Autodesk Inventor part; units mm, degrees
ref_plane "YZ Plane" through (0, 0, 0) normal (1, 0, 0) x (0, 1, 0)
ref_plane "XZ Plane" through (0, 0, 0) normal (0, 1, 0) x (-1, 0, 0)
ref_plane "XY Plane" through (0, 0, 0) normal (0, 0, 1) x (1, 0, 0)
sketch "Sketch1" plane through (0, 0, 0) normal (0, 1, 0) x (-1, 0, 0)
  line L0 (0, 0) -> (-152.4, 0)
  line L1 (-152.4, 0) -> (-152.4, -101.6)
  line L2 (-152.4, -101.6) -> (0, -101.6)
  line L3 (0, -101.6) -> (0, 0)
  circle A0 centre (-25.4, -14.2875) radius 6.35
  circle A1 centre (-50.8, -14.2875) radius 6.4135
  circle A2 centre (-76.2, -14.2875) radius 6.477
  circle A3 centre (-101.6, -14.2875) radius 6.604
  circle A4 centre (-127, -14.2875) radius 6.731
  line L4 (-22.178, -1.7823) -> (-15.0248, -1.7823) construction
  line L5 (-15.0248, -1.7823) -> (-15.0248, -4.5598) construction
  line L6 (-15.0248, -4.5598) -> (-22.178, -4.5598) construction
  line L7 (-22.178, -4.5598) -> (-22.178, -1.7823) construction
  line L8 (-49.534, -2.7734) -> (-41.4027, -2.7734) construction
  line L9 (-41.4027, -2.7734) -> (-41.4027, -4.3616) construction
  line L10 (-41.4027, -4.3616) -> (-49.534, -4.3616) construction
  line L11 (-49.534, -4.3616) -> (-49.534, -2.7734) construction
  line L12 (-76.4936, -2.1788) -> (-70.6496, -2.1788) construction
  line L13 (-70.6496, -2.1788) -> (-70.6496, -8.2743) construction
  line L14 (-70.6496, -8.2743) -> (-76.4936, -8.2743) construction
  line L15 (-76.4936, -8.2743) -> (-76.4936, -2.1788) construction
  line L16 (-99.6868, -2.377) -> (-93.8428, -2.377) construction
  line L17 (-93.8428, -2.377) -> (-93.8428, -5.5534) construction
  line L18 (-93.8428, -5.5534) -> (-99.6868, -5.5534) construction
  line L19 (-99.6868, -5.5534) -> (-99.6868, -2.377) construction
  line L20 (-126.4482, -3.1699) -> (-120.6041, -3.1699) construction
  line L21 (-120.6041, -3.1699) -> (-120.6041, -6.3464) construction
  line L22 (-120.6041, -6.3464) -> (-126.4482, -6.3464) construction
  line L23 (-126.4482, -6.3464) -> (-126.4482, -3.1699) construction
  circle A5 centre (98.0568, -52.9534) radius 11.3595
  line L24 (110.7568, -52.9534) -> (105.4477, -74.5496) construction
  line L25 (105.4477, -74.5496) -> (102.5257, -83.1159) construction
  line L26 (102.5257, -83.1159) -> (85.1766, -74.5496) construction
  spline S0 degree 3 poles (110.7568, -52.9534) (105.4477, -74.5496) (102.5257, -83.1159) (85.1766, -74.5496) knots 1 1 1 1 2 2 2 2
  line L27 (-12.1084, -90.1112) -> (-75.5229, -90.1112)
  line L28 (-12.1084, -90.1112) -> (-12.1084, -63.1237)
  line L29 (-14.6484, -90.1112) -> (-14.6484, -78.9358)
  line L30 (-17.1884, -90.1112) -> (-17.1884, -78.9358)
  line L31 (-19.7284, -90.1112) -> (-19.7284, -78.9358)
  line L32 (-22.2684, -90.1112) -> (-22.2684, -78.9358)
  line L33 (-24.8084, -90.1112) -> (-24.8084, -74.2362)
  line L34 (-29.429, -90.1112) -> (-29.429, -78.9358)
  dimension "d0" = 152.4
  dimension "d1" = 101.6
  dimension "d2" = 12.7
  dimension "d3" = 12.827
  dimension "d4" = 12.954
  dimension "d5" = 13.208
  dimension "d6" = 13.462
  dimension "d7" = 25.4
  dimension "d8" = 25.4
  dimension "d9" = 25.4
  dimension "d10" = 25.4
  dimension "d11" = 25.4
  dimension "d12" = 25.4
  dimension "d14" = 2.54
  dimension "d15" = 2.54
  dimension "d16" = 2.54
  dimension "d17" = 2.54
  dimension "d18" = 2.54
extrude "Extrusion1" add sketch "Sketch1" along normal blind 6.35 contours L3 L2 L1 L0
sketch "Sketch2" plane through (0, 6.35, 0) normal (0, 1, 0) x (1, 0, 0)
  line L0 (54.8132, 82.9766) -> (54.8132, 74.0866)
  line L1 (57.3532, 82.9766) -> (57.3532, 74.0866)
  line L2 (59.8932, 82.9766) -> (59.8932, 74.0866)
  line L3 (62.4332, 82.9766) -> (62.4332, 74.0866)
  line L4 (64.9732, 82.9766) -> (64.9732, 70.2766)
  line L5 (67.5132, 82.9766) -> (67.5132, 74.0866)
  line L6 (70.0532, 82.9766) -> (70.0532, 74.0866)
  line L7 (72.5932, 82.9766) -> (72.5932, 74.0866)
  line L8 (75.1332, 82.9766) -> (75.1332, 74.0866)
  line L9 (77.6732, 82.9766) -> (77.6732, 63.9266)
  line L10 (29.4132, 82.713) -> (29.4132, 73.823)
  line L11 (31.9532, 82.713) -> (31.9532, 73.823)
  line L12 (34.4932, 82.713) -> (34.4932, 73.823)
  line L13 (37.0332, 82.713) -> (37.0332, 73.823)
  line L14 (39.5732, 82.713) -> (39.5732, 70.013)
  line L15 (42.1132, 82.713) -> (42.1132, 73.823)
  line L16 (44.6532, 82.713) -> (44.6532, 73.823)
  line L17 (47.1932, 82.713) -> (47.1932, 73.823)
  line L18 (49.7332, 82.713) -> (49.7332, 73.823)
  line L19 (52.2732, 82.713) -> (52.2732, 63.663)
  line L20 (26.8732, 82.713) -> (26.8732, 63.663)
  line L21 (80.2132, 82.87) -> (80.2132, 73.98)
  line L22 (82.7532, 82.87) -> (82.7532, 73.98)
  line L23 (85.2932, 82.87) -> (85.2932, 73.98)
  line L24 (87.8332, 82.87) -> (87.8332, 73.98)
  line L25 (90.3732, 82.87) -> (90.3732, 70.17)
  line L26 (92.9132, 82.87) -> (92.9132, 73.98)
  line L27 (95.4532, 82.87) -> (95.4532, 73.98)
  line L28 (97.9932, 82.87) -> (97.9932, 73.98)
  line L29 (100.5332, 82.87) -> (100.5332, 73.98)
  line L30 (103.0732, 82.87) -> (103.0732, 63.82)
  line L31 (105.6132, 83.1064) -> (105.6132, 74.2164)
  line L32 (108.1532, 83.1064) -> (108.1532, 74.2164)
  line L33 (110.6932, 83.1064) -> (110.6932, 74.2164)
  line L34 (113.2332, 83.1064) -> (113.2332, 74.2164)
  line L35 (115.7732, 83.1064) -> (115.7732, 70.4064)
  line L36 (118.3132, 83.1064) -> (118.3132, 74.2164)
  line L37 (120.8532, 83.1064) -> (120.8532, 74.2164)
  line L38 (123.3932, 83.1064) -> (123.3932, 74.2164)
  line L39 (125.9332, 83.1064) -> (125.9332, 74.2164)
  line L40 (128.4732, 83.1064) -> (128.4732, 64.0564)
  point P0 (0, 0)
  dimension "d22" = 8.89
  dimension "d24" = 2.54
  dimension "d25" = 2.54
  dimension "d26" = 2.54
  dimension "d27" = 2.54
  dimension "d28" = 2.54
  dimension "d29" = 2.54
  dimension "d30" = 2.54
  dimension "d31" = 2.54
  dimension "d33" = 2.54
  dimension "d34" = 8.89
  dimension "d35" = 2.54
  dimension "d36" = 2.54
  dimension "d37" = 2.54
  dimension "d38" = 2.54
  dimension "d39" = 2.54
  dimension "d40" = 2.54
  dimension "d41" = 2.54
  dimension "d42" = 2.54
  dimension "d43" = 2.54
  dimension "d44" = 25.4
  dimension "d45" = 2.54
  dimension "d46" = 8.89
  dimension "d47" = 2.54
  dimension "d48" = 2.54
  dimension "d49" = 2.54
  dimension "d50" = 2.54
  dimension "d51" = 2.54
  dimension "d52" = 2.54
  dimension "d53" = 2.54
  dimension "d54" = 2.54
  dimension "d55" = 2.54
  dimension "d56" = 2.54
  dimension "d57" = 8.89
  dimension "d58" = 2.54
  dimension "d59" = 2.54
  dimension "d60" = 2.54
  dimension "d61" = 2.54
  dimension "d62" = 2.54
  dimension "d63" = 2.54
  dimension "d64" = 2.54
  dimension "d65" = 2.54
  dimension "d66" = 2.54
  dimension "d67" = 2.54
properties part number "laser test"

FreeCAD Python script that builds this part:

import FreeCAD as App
import Part
import Sketcher
from FreeCAD import Vector
Q = App.Units.Quantity


def add_polygon(sketch, points):
    """Adds a closed chain of lines whose ends are joined by coincident constraints."""
    first, n = sketch.GeometryCount, len(points)
    for a, b in zip(points, points[1:] + points[:1]):
        sketch.addGeometry(Part.LineSegment(App.Vector(*a, 0), App.Vector(*b, 0)), False)
    for i in range(n):
        sketch.addConstraint(Sketcher.Constraint("Coincident", first + i, 2, first + (i + 1) % n, 1))

doc = App.newDocument("Part")
body = doc.addObject("PartDesign::Body", "Body")

# Sketch on XZ plane
sketch1 = body.newObject("Sketcher::SketchObject", "Sketch")
sketch1.AttachmentSupport = (doc.getObject("XZ_Plane"), [""])
sketch1.MapMode = "FlatFace"
add_polygon(sketch1, [(0, -101.6), (0, 0), (152.4, 0), (152.4, -101.6)])  # lines 0-3
sketch1.addGeometry(Part.Circle(Vector(127, -14.2875, 0), Vector(0, 0, 1), 6.731), False)  # 4
sketch1.addGeometry(Part.Circle(Vector(101.6, -14.2875, 0), Vector(0, 0, 1), 6.604), False)  # 5
sketch1.addGeometry(Part.Circle(Vector(76.2, -14.2875, 0), Vector(0, 0, 1), 6.477), False)  # 6
sketch1.addGeometry(Part.Circle(Vector(50.8, -14.2875, 0), Vector(0, 0, 1), 6.4135), False)  # 7
sketch1.addGeometry(Part.Circle(Vector(25.4, -14.2875, 0), Vector(0, 0, 1), 6.35), False)  # 8
sketch1.addConstraint(Sketcher.Constraint("Vertical", 0))
sketch1.addConstraint(Sketcher.Constraint("Horizontal", 1))
sketch1.addConstraint(Sketcher.Constraint("Vertical", 2))
sketch1.addConstraint(Sketcher.Constraint("Horizontal", 3))
sketch1.addConstraint(Sketcher.Constraint("Coincident", 0, 2, -1, 1))
sketch1.addConstraint(Sketcher.Constraint("Horizontal", 4, 3, 5, 3))
sketch1.addConstraint(Sketcher.Constraint("Horizontal", 5, 3, 6, 3))
sketch1.addConstraint(Sketcher.Constraint("Horizontal", 6, 3, 7, 3))
sketch1.addConstraint(Sketcher.Constraint("Horizontal", 7, 3, 8, 3))
sketch1.addConstraint(Sketcher.Constraint("Diameter", 8, Q("0.5 in")))
sketch1.addConstraint(Sketcher.Constraint("Diameter", 4, Q("0.53 in")))
sketch1.addConstraint(Sketcher.Constraint("Diameter", 5, Q("0.52 in")))
sketch1.addConstraint(Sketcher.Constraint("Diameter", 6, Q("0.51 in")))
sketch1.addConstraint(Sketcher.Constraint("DistanceX", 1, 1, 1, 2, Q("6 in")))
sketch1.addConstraint(Sketcher.Constraint("DistanceY", 0, 1, 0, 2, Q("4 in")))
sketch1.addConstraint(Sketcher.Constraint("Diameter", 7, Q("0.505 in")))
sketch1.addConstraint(Sketcher.Constraint("DistanceX", -1, 1, 5, 3, Q("4 in")))
sketch1.addConstraint(Sketcher.Constraint("DistanceX", -1, 1, 8, 3, Q("1 in")))
sketch1.addConstraint(Sketcher.Constraint("DistanceX", 5, 3, 4, 3, Q("1 in")))
sketch1.addConstraint(Sketcher.Constraint("DistanceX", 6, 3, 5, 3, Q("1 in")))
sketch1.addConstraint(Sketcher.Constraint("DistanceX", 7, 3, 6, 3, Q("1 in")))
sketch1.addConstraint(Sketcher.Constraint("DistanceY", 4, 3, -1, 1, Q("0.5625 in")))
pad1 = body.newObject("PartDesign::Pad", "Pad")
pad1.Profile = sketch1
pad1.Length = Q("0.25 in")
pad1.Reversed = True

doc.recompute()
